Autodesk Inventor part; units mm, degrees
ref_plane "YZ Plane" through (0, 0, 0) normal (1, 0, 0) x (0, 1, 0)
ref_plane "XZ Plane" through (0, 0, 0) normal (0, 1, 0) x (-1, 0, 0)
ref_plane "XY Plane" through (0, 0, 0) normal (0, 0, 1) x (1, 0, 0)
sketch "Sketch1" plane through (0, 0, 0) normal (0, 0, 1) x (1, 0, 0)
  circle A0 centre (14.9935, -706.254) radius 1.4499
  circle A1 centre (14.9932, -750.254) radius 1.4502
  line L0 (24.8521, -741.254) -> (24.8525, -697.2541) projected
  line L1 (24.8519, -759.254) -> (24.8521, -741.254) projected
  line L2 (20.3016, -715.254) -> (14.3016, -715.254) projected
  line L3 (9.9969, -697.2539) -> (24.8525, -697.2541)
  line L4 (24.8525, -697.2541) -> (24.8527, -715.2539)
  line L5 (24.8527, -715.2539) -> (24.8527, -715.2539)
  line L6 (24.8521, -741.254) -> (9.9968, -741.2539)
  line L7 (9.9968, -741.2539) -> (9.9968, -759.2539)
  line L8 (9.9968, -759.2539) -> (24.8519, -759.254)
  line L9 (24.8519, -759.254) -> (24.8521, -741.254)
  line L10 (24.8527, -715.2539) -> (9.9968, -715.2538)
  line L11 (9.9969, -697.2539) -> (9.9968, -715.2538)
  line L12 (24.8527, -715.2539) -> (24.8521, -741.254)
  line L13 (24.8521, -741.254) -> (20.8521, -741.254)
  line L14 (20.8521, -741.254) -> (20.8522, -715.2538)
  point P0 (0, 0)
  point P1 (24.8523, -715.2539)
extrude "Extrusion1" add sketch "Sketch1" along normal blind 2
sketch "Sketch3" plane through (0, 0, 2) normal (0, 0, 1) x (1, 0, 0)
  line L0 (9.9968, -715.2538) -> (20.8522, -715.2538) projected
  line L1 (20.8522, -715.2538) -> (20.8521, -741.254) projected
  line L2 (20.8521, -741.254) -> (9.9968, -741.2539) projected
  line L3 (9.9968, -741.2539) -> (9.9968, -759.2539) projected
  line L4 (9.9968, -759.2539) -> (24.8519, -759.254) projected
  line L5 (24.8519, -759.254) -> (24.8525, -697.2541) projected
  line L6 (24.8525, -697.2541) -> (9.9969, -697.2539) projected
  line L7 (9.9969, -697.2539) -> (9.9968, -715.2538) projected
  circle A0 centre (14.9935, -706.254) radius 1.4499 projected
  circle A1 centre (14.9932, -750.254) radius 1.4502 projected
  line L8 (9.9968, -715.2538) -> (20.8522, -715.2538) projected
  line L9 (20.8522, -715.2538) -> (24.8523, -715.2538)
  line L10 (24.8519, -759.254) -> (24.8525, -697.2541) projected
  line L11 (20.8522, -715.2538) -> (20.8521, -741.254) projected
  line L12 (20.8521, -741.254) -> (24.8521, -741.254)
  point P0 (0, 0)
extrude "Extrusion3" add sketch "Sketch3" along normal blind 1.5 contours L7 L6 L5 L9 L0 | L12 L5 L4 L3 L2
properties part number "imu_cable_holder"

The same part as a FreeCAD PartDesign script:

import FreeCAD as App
import Part
import Sketcher

V = App.Vector
Q = App.Units.Quantity


def add_polygon(sketch, points):
    """Adds a closed chain of lines whose ends are joined by coincident constraints."""
    first, n = sketch.GeometryCount, len(points)
    for a, b in zip(points, points[1:] + points[:1]):
        sketch.addGeometry(Part.LineSegment(App.Vector(*a, 0), App.Vector(*b, 0)), False)
    for i in range(n):
        sketch.addConstraint(Sketcher.Constraint("Coincident", first + i, 2, first + (i + 1) % n, 1))

doc = App.newDocument("Part")
body = doc.addObject("PartDesign::Body", "Body")

sketch1 = doc.addObject("Sketcher::SketchObject", "Sketch")
body.addObject(sketch1)
sketch1.AttachmentSupport = (doc.XY_Plane, [""])
sketch1.MapMode = "FlatFace"
add_polygon(sketch1, [(20.9, -715.3), (20.9, -741.3), (10, -741.3), (10, -759.3), (24.9, -759.3), (24.9, -741.3), (24.9, -697.3), (10, -697.3), (10, -715.3), (14.3, -715.3), (20.3, -715.3)])
sketch1.addGeometry(Part.Circle(V(15, -750.3, 0), V(0, 0, 1), 1.5), False)
sketch1.addGeometry(Part.Circle(V(15, -706.3, 0), V(0, 0, 1), 1.4), False)
sketch1.addConstraint([
    Sketcher.Constraint("Vertical", 0),
    Sketcher.Constraint("Horizontal", 1),
    Sketcher.Constraint("Vertical", 2),
    Sketcher.Constraint("Horizontal", 3),
    Sketcher.Constraint("Vertical", 4),
    Sketcher.Constraint("Horizontal", 6),
    Sketcher.Constraint("Vertical", 7),
    Sketcher.Constraint("Horizontal", 8),
    Sketcher.Constraint("Horizontal", 9),
    Sketcher.Constraint("Horizontal", 10),
    Sketcher.Constraint("Horizontal", 1, 2, 4, 2),
    Sketcher.Constraint("Vertical", 2, 2, 6, 2),
    Sketcher.Constraint("Equal", 4, 7),
    Sketcher.Constraint("DistanceX", 9, 1, 9, 2, Q("6 mm")),
    Sketcher.Constraint("DistanceY", 2, 2, 2, 1, Q("18 mm")),
    Sketcher.Constraint("Angle", 5, Q("89.9995 deg")),
    Sketcher.Constraint("Distance", 5, Q("44 mm")),
    Sketcher.Constraint("DistanceY", 11, 3, 12, 3, Q("44 mm")),
    Sketcher.Constraint("DistanceY", 11, 3, 0, 2, Q("9 mm")),
    Sketcher.Constraint("DistanceX", 0, 2, 4, 2, Q("4 mm")),
    Sketcher.Constraint("Diameter", 11, Q("2.9004 mm")),
    Sketcher.Constraint("Diameter", 12, Q("2.8998 mm")),
    Sketcher.Constraint("DistanceX", 3, 1, 3, 2, Q("14.855 mm")),
    Sketcher.Constraint("DistanceX", 8, 1, 8, 2, Q("4.3048 mm")),
    Sketcher.Constraint("DistanceY", 11, 3, -1, 1, Q("750.254 mm")),
    Sketcher.Constraint("DistanceX", -1, 1, 0, 2, Q("20.852 mm")),
    Sketcher.Constraint("DistanceX", 11, 3, 0, 2, Q("5.859 mm")),
    Sketcher.Constraint("DistanceX", 12, 3, 5, 2, Q("9.859 mm")),
])
pad1 = doc.addObject("PartDesign::Pad", "Pad")
body.addObject(pad1)
pad1.Profile = sketch1
pad1.Length = 2

sketch2 = doc.addObject("Sketcher::SketchObject", "Sketch001")
body.addObject(sketch2)
sketch2.AttachmentSupport = (doc.XY_Plane, [""])
sketch2.MapMode = "FlatFace"
sketch2.AttachmentOffset = App.Placement(V(0, 0, 2), App.Rotation())
add_polygon(sketch2, [(10, -697.3), (10, -715.3), (24.9, -715.3), (24.9, -697.3)])
sketch2.addGeometry(Part.Circle(V(15, -706.3, 0), V(0, 0, 1), 1.4), False)
add_polygon(sketch2, [(24.9, -741.3), (20.9, -741.3), (10, -741.3), (10, -759.3), (24.9, -759.3)])
sketch2.addGeometry(Part.Circle(V(15, -750.3, 0), V(0, 0, 1), 1.5), False)
sketch2.addConstraint([
    Sketcher.Constraint("Vertical", 0),
    Sketcher.Constraint("Horizontal", 1),
    Sketcher.Constraint("Vertical", 2),
    Sketcher.Constraint("Horizontal", 3),
    Sketcher.Constraint("Horizontal", 5),
    Sketcher.Constraint("Horizontal", 6),
    Sketcher.Constraint("Vertical", 7),
    Sketcher.Constraint("Horizontal", 8),
    Sketcher.Constraint("Vertical", 9),
    Sketcher.Constraint("Vertical", 3, 2, 6, 2),
    Sketcher.Constraint("Equal", 0, 7),
    Sketcher.Constraint("DistanceX", 5, 2, 5, 1, Q("4 mm")),
    Sketcher.Constraint("DistanceY", 0, 2, 0, 1, Q("18 mm")),
    Sketcher.Constraint("DistanceY", 10, 3, 4, 3, Q("44 mm")),
    Sketcher.Constraint("DistanceY", 4, 3, 2, 2, Q("9 mm")),
    Sketcher.Constraint("DistanceY", 10, 3, 5, 2, Q("9 mm")),
    Sketcher.Constraint("Diameter", 4, Q("2.8998 mm")),
    Sketcher.Constraint("Diameter", 10, Q("2.9004 mm")),
    Sketcher.Constraint("DistanceX", 8, 1, 8, 2, Q("14.855 mm")),
    Sketcher.Constraint("DistanceX", 1, 1, 1, 2, Q("14.8555 mm")),
    Sketcher.Constraint("DistanceY", 4, 3, -1, 1, Q("706.254 mm")),
    Sketcher.Constraint("DistanceX", -1, 1, 3, 2, Q("9.997 mm")),
    Sketcher.Constraint("DistanceX", 10, 3, 1, 2, Q("9.859 mm")),
    Sketcher.Constraint("DistanceX", 4, 3, 2, 2, Q("9.859 mm")),
])
pad2 = doc.addObject("PartDesign::Pad", "Pad001")
body.addObject(pad2)
pad2.Profile = sketch2
pad2.Length = 1.5

doc.recompute()
